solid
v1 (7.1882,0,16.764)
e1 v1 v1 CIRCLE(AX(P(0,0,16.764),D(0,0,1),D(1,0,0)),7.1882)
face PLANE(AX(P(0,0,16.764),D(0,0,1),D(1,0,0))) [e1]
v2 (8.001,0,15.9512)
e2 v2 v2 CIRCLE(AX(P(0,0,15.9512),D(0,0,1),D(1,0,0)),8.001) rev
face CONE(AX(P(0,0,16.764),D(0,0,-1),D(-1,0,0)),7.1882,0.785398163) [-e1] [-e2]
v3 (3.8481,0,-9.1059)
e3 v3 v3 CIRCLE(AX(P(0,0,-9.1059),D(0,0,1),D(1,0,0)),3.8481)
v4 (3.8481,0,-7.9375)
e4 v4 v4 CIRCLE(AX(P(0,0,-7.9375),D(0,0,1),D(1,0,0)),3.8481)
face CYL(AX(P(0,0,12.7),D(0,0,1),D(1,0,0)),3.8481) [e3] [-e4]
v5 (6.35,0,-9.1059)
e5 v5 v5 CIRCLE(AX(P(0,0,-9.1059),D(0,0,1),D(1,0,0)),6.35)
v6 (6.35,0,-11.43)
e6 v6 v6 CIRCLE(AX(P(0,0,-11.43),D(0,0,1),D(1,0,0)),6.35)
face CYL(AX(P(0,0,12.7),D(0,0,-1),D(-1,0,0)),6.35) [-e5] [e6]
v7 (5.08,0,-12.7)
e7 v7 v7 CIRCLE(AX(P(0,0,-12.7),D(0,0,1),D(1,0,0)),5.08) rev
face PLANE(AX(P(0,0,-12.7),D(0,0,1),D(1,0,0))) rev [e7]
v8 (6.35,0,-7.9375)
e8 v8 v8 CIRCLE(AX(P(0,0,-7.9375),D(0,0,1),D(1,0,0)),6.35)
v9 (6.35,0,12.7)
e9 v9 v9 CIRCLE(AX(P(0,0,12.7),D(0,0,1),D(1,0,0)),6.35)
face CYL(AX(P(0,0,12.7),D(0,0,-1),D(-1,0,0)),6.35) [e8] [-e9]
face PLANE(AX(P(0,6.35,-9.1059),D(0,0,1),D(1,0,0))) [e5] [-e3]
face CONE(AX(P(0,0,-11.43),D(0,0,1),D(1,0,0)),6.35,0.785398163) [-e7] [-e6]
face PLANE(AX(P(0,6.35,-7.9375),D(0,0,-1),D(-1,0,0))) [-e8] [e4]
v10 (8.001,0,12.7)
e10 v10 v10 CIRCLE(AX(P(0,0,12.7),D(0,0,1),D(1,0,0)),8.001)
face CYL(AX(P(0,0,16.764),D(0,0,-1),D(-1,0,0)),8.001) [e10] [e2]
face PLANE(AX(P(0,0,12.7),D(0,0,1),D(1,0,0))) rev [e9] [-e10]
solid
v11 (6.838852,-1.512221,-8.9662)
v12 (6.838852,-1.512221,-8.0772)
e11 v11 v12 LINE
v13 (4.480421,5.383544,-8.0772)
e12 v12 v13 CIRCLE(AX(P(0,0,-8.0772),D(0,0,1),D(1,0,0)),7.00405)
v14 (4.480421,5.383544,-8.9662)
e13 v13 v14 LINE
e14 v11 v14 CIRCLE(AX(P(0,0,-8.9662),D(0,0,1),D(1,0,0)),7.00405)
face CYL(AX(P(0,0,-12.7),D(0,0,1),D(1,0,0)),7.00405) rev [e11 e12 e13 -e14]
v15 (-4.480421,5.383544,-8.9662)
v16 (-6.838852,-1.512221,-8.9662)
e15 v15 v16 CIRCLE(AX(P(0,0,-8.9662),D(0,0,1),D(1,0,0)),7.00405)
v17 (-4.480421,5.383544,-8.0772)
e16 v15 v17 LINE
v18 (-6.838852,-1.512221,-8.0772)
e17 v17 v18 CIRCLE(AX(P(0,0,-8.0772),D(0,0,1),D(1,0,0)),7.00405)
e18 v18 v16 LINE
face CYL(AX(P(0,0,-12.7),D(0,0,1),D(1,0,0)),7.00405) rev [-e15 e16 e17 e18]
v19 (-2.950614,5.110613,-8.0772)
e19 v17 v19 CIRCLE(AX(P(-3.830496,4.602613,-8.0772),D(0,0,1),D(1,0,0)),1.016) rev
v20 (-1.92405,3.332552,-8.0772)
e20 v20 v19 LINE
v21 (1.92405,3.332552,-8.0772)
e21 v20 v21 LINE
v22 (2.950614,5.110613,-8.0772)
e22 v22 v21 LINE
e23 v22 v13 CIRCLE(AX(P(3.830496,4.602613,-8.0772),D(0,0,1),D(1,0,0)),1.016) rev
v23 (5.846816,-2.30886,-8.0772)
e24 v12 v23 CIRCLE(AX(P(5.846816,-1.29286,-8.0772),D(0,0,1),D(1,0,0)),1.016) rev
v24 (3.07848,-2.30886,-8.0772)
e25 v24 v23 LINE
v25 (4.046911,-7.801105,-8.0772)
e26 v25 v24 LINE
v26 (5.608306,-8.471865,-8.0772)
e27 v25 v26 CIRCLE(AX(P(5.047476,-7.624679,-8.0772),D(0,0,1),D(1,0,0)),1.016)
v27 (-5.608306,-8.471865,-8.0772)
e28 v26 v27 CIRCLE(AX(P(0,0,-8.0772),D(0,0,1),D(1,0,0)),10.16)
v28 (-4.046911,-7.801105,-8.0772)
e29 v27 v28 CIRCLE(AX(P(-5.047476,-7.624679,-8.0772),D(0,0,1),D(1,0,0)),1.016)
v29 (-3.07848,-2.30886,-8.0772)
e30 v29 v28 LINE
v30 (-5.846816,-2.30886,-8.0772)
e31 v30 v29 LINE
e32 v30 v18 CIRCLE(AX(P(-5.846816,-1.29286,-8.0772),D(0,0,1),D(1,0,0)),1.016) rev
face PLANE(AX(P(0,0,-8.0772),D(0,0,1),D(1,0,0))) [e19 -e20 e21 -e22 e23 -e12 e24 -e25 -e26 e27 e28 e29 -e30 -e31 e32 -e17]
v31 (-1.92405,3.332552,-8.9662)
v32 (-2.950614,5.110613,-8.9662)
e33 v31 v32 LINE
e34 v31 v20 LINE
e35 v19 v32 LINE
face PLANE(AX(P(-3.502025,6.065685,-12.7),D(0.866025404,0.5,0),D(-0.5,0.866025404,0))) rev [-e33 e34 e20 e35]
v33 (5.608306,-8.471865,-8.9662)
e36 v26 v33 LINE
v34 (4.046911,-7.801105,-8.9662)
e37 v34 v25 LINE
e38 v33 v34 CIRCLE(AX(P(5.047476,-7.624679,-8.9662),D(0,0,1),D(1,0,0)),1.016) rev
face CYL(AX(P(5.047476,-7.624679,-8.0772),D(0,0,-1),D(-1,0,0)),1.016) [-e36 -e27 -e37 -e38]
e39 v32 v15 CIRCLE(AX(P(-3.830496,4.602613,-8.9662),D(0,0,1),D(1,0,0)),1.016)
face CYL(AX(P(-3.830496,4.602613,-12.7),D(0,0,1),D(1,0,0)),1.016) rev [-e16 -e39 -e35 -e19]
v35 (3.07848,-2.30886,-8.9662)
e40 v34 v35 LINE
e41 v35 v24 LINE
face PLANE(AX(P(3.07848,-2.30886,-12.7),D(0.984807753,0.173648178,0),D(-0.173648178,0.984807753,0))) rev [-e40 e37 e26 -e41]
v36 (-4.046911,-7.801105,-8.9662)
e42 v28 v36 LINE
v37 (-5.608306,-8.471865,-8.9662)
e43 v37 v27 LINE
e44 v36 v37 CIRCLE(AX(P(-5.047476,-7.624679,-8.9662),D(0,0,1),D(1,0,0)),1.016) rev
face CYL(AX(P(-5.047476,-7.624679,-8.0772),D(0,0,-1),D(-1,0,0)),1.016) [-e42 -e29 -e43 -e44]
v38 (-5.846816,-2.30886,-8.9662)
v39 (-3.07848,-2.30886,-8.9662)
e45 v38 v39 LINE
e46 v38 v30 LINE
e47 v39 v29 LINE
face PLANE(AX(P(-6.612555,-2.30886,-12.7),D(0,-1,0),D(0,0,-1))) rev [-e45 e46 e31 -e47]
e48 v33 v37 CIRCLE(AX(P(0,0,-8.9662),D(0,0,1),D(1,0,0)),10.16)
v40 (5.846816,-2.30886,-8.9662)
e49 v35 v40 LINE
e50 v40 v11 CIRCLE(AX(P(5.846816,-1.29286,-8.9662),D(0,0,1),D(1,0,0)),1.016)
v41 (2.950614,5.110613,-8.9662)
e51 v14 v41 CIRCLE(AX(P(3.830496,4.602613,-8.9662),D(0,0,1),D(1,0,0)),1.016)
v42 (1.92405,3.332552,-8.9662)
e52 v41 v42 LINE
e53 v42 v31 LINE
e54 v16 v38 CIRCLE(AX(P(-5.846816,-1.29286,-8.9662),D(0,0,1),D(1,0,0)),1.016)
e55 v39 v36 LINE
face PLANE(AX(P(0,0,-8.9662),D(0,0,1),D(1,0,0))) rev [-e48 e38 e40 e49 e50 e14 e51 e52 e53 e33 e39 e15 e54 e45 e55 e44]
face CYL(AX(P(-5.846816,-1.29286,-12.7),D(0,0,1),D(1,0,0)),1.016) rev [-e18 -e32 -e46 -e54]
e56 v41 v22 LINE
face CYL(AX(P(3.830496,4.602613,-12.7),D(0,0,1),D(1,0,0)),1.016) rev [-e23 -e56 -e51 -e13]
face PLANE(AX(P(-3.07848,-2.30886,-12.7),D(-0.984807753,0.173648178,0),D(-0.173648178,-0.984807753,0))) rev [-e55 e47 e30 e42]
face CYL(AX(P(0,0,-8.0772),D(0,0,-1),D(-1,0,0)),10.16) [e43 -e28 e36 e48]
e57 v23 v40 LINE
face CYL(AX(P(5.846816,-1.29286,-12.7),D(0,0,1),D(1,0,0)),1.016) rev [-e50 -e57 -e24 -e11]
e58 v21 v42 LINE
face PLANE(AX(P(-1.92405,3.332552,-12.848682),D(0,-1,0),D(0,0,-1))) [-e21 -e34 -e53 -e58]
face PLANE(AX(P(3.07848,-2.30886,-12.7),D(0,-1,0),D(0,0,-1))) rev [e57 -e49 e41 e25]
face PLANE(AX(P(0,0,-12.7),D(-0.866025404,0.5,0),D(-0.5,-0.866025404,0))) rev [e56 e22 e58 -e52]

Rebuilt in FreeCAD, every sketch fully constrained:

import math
import FreeCAD as App
import Part
import Sketcher
Q = App.Units.Quantity


def edges_at(feature, points):
    """Names of the edges that pass closest to the given points."""
    edges = feature.Shape.Edges
    near = lambda p: min(range(len(edges)), key=lambda i: edges[i].distToShape(Part.Vertex(*p))[0])
    return sorted({f"Edge{near(p) + 1}" for p in points})

doc = App.newDocument("Part")
body = doc.addObject("PartDesign::Body", "Body")

sketch1 = body.newObject("Sketcher::SketchObject", "Sketch")
sketch1.AttachmentSupport = (doc.getObject("XY_Plane"), [""])
sketch1.MapMode = "FlatFace"
sketch1.addGeometry(Part.Circle(App.Vector(0, 0, 0), App.Vector(0, 0, 1), 6), False)
sketch1.addConstraint([
    Sketcher.Constraint("Coincident", 0, 3, -1, 1),
    Sketcher.Constraint("Diameter", 0, Q("0.5 in")),
])
pad1 = body.newObject("PartDesign::Pad", "Pad")
pad1.Profile = sketch1
pad1.Length = Q("1 in")
pad1.Midplane = True

sketch2 = body.newObject("Sketcher::SketchObject", "Sketch001")
sketch2.AttachmentSupport = (doc.getObject("YZ_Plane"), [""])
sketch2.MapMode = "FlatFace"
sketch2.addGeometry([
    Part.LineSegment(App.Vector(6.3, -7.9, 0), App.Vector(3.8, -7.9, 0)),
    Part.LineSegment(App.Vector(3.8, -7.9, 0), App.Vector(3.8, -9.1, 0)),
    Part.LineSegment(App.Vector(3.8, -9.1, 0), App.Vector(6.3, -9.1, 0)),
    Part.LineSegment(App.Vector(6.3, -9.1, 0), App.Vector(6.3, -7.9, 0)),
], False)
sketch2.addConstraint([
    Sketcher.Constraint("Coincident", 0, 2, 1, 1),
    Sketcher.Constraint("Coincident", 1, 2, 2, 1),
    Sketcher.Constraint("Coincident", 2, 2, 3, 1),
    Sketcher.Constraint("Coincident", 3, 2, 0, 1),
    Sketcher.Constraint("Horizontal", 0),
    Sketcher.Constraint("Vertical", 1),
    Sketcher.Constraint("Horizontal", 2),
    Sketcher.Constraint("Vertical", 3),
    Sketcher.Constraint("DistanceY", 1, 2, 1, 1, Q("0.046 in")),
    Sketcher.Constraint("DistanceX", -1, 1, 2, 2, Q("0.25 in")),
    Sketcher.Constraint("DistanceX", 0, 2, 0, 1, Q("0.0985 in")),
    Sketcher.Constraint("DistanceY", 0, 2, -1, 1, Q("0.3125 in")),
])
groove = body.newObject("PartDesign::Groove", "Groove")
groove.Profile = sketch2
groove.ReferenceAxis = (sketch2, ["V_Axis"])
groove.Angle = 360

sketch3 = body.newObject("Sketcher::SketchObject", "Sketch002")
sketch3.AttachmentSupport = (doc.getObject("XY_Plane"), [""])
sketch3.MapMode = "FlatFace"
sketch3.AttachmentOffset = App.Placement(App.Vector(0, 0, 0.5 * 25.4), App.Rotation())
sketch3.addGeometry(Part.Circle(App.Vector(0, 0, 0), App.Vector(0, 0, 1), 8), False)
sketch3.addConstraint([
    Sketcher.Constraint("Coincident", 0, 3, -1, 1),
    Sketcher.Constraint("Diameter", 0, Q("0.63 in")),
])
pad2 = body.newObject("PartDesign::Pad", "Pad001")
pad2.Profile = sketch3
pad2.Length = Q("0.16 in")
doc.recompute()

chamfer = body.newObject("PartDesign::Chamfer", "Chamfer")
chamfer.Base = (pad2, edges_at(pad2, [(-8.001, 0, 16.764)]))
chamfer.Size = Q("0.032 in")
doc.recompute()

chamfer2 = body.newObject("PartDesign::Chamfer", "Chamfer001")
chamfer2.Base = (chamfer, edges_at(chamfer, [(-6.35, 0, -12.7)]))
chamfer2.Size = Q("0.05 in")
body2 = doc.addObject("PartDesign::Body", "Body001")

sketch4 = body2.newObject("Sketcher::SketchObject", "Sketch003")
sketch4.AttachmentSupport = (doc.getObject("XY_Plane001"), [""])
sketch4.MapMode = "FlatFace"
sketch4.AttachmentOffset = App.Placement(App.Vector(0, 0, -0.3355 * 25.4), App.Rotation())
sketch4.addGeometry([
    Part.Circle(App.Vector(0, 0, 0), App.Vector(0, 0, 1), 10.2),
    Part.Circle(App.Vector(0, 0, 0), App.Vector(0, 0, 1), 3.8),
], False)
sketch4.addConstraint([
    Sketcher.Constraint("Coincident", 0, 3, -1, 1),
    Sketcher.Constraint("Coincident", 1, 3, -1, 1),
    Sketcher.Constraint("Diameter", 0, Q("0.8 in")),
    Sketcher.Constraint("Diameter", 1, Q("0.303 in")),
])
pad3 = body2.newObject("PartDesign::Pad", "Pad002")
pad3.Profile = sketch4
pad3.Length = Q("0.035 in")
pad3.Midplane = True

sketch5 = body2.newObject("Sketcher::SketchObject", "Sketch004")
sketch5.AttachmentSupport = (doc.getObject("XY_Plane001"), [""])
sketch5.MapMode = "FlatFace"
sketch5.addGeometry([
    Part.LineSegment(App.Vector(0, 0, 0), App.Vector(-3.5, 6.1, 0)),
    Part.ArcOfCircle(Part.Circle(App.Vector(0, 0, 0), App.Vector(0, 0, 1), 7), math.radians(120), math.radians(199)),
    Part.LineSegment(App.Vector(-6.6, -2.3, 0), App.Vector(-3.1, -2.3, 0)),
    Part.LineSegment(App.Vector(-3.1, -2.3, 0), App.Vector(-4.3, -9.2, 0)),
    Part.ArcOfCircle(Part.Circle(App.Vector(0, 0, 0), App.Vector(0, 0, 1), 10.2), math.radians(-115), math.radians(-65)),
    Part.LineSegment(App.Vector(4.3, -9.2, 0), App.Vector(3.1, -2.3, 0)),
    Part.LineSegment(App.Vector(3.1, -2.3, 0), App.Vector(6.6, -2.3, 0)),
    Part.ArcOfCircle(Part.Circle(App.Vector(0, 0, 0), App.Vector(0, 0, 1), 7), math.radians(-19), math.radians(60)),
    Part.LineSegment(App.Vector(3.5, 6.1, 0), App.Vector(0, 0, 0)),
], False)
sketch5.addConstraint([
    Sketcher.Constraint("Coincident", 0, 2, 1, 1),
    Sketcher.Constraint("Coincident", 1, 2, 2, 1),
    Sketcher.Constraint("Coincident", 2, 2, 3, 1),
    Sketcher.Constraint("Coincident", 3, 2, 4, 1),
    Sketcher.Constraint("Coincident", 4, 2, 5, 1),
    Sketcher.Constraint("Coincident", 5, 2, 6, 1),
    Sketcher.Constraint("Coincident", 6, 2, 7, 1),
    Sketcher.Constraint("Coincident", 7, 2, 8, 1),
    Sketcher.Constraint("Coincident", 8, 2, 0, 1),
    Sketcher.Constraint("Horizontal", 2),
    Sketcher.Constraint("Horizontal", 6),
    Sketcher.Constraint("Coincident", 1, 3, -1, 1),
    Sketcher.Constraint("Coincident", 4, 3, -1, 1),
    Sketcher.Constraint("Coincident", 7, 3, -1, 1),
    Sketcher.Constraint("Coincident", 8, 2, -1, 1),
    Sketcher.Constraint("Equal", 1, 7),
    Sketcher.Constraint("Symmetric", 2, 2, 5, 2, -2),
    Sketcher.Constraint("Horizontal", 3, 2, 4, 2),
    Sketcher.Constraint("Horizontal", 0, 2, 7, 2),
    Sketcher.Constraint("Radius", 4, Q("0.4 in")),
    Sketcher.Constraint("Angle", 0, Q("120 deg")),
    Sketcher.Constraint("Angle", 3, Q("-100 deg")),
    Sketcher.Constraint("Radius", 1, Q("7.00405 mm")),
    Sketcher.Constraint("DistanceY", 1, 2, -1, 1, Q("0.0909 in")),
    Sketcher.Constraint("DistanceX", 2, 2, -1, 1, Q("0.1212 in")),
])
pocket1 = body2.newObject("PartDesign::Pocket", "Pocket")
pocket1.Profile = sketch5
pocket1.Type = "ThroughAll"

sketch6 = body2.newObject("Sketcher::SketchObject", "Sketch005")
sketch6.AttachmentSupport = (doc.getObject("XY_Plane001"), [""])
sketch6.MapMode = "FlatFace"
sketch6.AttachmentOffset = App.Placement(App.Vector(0, 0, -0.318 * 25.4), App.Rotation())
sketch6.addGeometry([
    Part.LineSegment(App.Vector(-1.9, 3.3, 0), App.Vector(1.9, 3.3, 0)),
    Part.ArcOfCircle(Part.Circle(App.Vector(0, 0, 0), App.Vector(0, 0, 1), 3.8), math.radians(60), math.radians(120)),
], False)
sketch6.addConstraint([
    Sketcher.Constraint("Coincident", 0, 1, 1, 2),
    Sketcher.Constraint("Coincident", 1, 1, 0, 2),
    Sketcher.Constraint("Horizontal", 0),
    Sketcher.Constraint("Coincident", 1, 3, -1, 1),
    Sketcher.Constraint("Radius", 1, Q("0.1515 in")),
    Sketcher.Constraint("DistanceX", 0, 1, 0, 2, Q("0.1515 in")),
])
pad4 = body2.newObject("PartDesign::Pad", "Pad003")
pad4.Profile = sketch6
pad4.Length = Q("0.035 in")
pad4.Reversed = True
doc.recompute()

fillet = body2.newObject("PartDesign::Fillet", "Fillet")
fillet.Base = (pad4, edges_at(pad4, [
    (3.502, 6.066, -8.522),
    (4.295, -9.208, -8.522),
    (-6.613, -2.309, -8.522),
    (6.613, -2.309, -8.522),
    (-4.295, -9.208, -8.522),
    (-3.502, 6.066, -8.522),
]))
fillet.Radius = Q("0.04 in")

doc.recompute()
